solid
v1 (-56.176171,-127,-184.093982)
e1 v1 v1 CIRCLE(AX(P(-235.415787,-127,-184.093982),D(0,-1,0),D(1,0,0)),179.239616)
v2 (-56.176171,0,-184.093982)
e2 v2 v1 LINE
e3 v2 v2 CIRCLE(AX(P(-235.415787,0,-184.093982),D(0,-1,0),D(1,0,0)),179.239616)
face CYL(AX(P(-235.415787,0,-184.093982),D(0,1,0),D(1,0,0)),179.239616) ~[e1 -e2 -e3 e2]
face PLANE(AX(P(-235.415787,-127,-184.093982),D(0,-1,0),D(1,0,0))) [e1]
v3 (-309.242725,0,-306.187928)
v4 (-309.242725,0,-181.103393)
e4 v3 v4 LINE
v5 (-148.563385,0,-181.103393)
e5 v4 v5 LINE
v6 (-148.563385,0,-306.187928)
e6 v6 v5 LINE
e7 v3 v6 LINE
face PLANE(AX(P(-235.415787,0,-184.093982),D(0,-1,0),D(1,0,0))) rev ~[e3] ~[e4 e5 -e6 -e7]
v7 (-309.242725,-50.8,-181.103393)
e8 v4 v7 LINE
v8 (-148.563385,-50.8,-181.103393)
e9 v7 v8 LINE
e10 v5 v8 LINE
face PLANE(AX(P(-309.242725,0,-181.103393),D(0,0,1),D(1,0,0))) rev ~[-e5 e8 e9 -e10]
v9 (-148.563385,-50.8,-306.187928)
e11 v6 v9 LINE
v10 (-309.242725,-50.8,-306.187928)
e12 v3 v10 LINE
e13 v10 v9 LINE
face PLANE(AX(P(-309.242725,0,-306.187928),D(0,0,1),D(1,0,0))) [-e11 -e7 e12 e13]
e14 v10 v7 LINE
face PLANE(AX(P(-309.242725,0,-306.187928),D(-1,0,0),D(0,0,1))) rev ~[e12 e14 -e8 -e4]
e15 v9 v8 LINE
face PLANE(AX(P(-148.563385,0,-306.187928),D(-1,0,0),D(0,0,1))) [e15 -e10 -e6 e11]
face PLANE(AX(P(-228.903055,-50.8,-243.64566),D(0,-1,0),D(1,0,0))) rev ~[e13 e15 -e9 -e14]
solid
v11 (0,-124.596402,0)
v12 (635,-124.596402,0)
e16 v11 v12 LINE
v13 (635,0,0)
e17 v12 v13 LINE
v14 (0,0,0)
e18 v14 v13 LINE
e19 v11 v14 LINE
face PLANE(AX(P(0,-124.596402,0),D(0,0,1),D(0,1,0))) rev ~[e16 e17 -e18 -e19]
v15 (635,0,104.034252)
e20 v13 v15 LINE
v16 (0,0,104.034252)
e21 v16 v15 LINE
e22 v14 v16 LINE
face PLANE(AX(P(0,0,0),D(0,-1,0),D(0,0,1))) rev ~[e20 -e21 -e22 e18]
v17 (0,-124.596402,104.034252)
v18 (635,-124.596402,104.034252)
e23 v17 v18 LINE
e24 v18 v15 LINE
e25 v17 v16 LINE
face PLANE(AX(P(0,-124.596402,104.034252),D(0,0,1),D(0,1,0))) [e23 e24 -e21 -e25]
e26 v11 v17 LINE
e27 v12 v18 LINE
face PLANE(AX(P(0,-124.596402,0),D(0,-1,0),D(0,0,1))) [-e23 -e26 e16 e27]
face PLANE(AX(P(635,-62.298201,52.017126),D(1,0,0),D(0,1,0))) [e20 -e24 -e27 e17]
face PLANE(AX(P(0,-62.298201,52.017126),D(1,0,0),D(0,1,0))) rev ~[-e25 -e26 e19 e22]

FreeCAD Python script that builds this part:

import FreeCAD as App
import Part
import Sketcher
Q = App.Units.Quantity

doc = App.newDocument("Part")
body = doc.addObject("PartDesign::Body", "Body")

# Sketch on YZ plane
sketch1 = body.newObject("Sketcher::SketchObject", "Sketch")
sketch1.AttachmentSupport = (doc.getObject("YZ_Plane"), [""])
sketch1.MapMode = "FlatFace"
sketch1.addGeometry(Part.LineSegment(App.Vector(-125, 104, 0), App.Vector(-125, 0, 0)), False)
sketch1.addGeometry(Part.LineSegment(App.Vector(-125, 0, 0), App.Vector(0, 0, 0)), False)
sketch1.addGeometry(Part.LineSegment(App.Vector(0, 0, 0), App.Vector(0, 104, 0)), False)
sketch1.addGeometry(Part.LineSegment(App.Vector(0, 104, 0), App.Vector(-125, 104, 0)), False)
sketch1.addConstraint(Sketcher.Constraint("Coincident", 0, 2, 1, 1))
sketch1.addConstraint(Sketcher.Constraint("Coincident", 1, 2, 2, 1))
sketch1.addConstraint(Sketcher.Constraint("Coincident", 2, 2, 3, 1))
sketch1.addConstraint(Sketcher.Constraint("Coincident", 3, 2, 0, 1))
sketch1.addConstraint(Sketcher.Constraint("Vertical", 0))
sketch1.addConstraint(Sketcher.Constraint("Horizontal", 1))
sketch1.addConstraint(Sketcher.Constraint("Vertical", 2))
sketch1.addConstraint(Sketcher.Constraint("Horizontal", 3))
sketch1.addConstraint(Sketcher.Constraint("Coincident", 1, 2, -1, 1))
sketch1.addConstraint(Sketcher.Constraint("DistanceX", 1, 1, 1, 2, Q("124.596402 mm")))
sketch1.addConstraint(Sketcher.Constraint("DistanceY", 0, 2, 0, 1, Q("104.034252 mm")))
pad1 = body.newObject("PartDesign::Pad", "Pad")
pad1.Profile = sketch1
pad1.Length = Q("25 in")

# Sketch on XZ plane
sketch2 = body.newObject("Sketcher::SketchObject", "Sketch001")
sketch2.AttachmentSupport = (doc.getObject("XZ_Plane"), [""])
sketch2.MapMode = "FlatFace"
sketch2.addGeometry(Part.LineSegment(App.Vector(-290, 151, 0), App.Vector(-290, -64, 0)), False)
sketch2.addGeometry(Part.LineSegment(App.Vector(-290, -64, 0), App.Vector(-131, -64, 0)), False)
sketch2.addGeometry(Part.LineSegment(App.Vector(-131, -64, 0), App.Vector(-131, 151, 0)), False)
sketch2.addGeometry(Part.LineSegment(App.Vector(-131, 151, 0), App.Vector(-290, 151, 0)), False)
sketch2.addConstraint(Sketcher.Constraint("Coincident", 0, 2, 1, 1))
sketch2.addConstraint(Sketcher.Constraint("Coincident", 1, 2, 2, 1))
sketch2.addConstraint(Sketcher.Constraint("Coincident", 2, 2, 3, 1))
sketch2.addConstraint(Sketcher.Constraint("Coincident", 3, 2, 0, 1))
sketch2.addConstraint(Sketcher.Constraint("Vertical", 0))
sketch2.addConstraint(Sketcher.Constraint("Horizontal", 1))
sketch2.addConstraint(Sketcher.Constraint("Vertical", 2))
sketch2.addConstraint(Sketcher.Constraint("Horizontal", 3))
sketch2.addConstraint(Sketcher.Constraint("DistanceY", 0, 2, 0, 1, Q("214.787192 mm")))
sketch2.addConstraint(Sketcher.Constraint("DistanceX", 1, 1, 1, 2, Q("159.774974 mm")))
sketch2.addConstraint(Sketcher.Constraint("DistanceX", 0, 2, -1, 1, Q("290.339738 mm")))
sketch2.addConstraint(Sketcher.Constraint("DistanceY", 0, 2, -1, 1, Q("64.092971 mm")))
pocket1 = body.newObject("PartDesign::Pocket", "Pocket")
pocket1.Profile = sketch2
pocket1.Length = Q("1 in")
pocket1.Reversed = True
body2 = doc.addObject("PartDesign::Body", "Body001")

# Sketch on XZ plane
sketch3 = body2.newObject("Sketcher::SketchObject", "Sketch002")
sketch3.AttachmentSupport = (doc.getObject("XZ_Plane001"), [""])
sketch3.MapMode = "FlatFace"
sketch3.addGeometry(Part.Circle(App.Vector(-235, -184, 0), App.Vector(0, 0, 1), 179), False)
sketch3.addConstraint(Sketcher.Constraint("Diameter", 0, Q("358.479232 mm")))
sketch3.addConstraint(Sketcher.Constraint("DistanceX", 0, 3, -1, 1, Q("235.415787 mm")))
sketch3.addConstraint(Sketcher.Constraint("DistanceY", 0, 3, -1, 1, Q("184.093982 mm")))
pad2 = body2.newObject("PartDesign::Pad", "Pad001")
pad2.Profile = sketch3
pad2.Length = Q("5 in")

# Sketch on XZ plane
sketch4 = body2.newObject("Sketcher::SketchObject", "Sketch003")
sketch4.AttachmentSupport = (doc.getObject("XZ_Plane001"), [""])
sketch4.MapMode = "FlatFace"
sketch4.addGeometry(Part.LineSegment(App.Vector(-309, -181, 0), App.Vector(-309, -306, 0)), False)
sketch4.addGeometry(Part.LineSegment(App.Vector(-309, -306, 0), App.Vector(-149, -306, 0)), False)
sketch4.addGeometry(Part.LineSegment(App.Vector(-149, -306, 0), App.Vector(-149, -181, 0)), False)
sketch4.addGeometry(Part.LineSegment(App.Vector(-149, -181, 0), App.Vector(-309, -181, 0)), False)
sketch4.addConstraint(Sketcher.Constraint("Coincident", 0, 2, 1, 1))
sketch4.addConstraint(Sketcher.Constraint("Coincident", 1, 2, 2, 1))
sketch4.addConstraint(Sketcher.Constraint("Coincident", 2, 2, 3, 1))
sketch4.addConstraint(Sketcher.Constraint("Coincident", 3, 2, 0, 1))
sketch4.addConstraint(Sketcher.Constraint("Vertical", 0))
sketch4.addConstraint(Sketcher.Constraint("Horizontal", 1))
sketch4.addConstraint(Sketcher.Constraint("Vertical", 2))
sketch4.addConstraint(Sketcher.Constraint("Horizontal", 3))
sketch4.addConstraint(Sketcher.Constraint("DistanceX", 1, 1, 1, 2, Q("160.67934 mm")))
sketch4.addConstraint(Sketcher.Constraint("DistanceY", 0, 2, 0, 1, Q("125.084535 mm")))
sketch4.addConstraint(Sketcher.Constraint("DistanceX", 0, 2, -1, 1, Q("309.242725 mm")))
sketch4.addConstraint(Sketcher.Constraint("DistanceY", 0, 2, -1, 1, Q("306.187928 mm")))
pocket2 = body2.newObject("PartDesign::Pocket", "Pocket001")
pocket2.Profile = sketch4
pocket2.Length = Q("2 in")
pocket2.Reversed = True

doc.recompute()
